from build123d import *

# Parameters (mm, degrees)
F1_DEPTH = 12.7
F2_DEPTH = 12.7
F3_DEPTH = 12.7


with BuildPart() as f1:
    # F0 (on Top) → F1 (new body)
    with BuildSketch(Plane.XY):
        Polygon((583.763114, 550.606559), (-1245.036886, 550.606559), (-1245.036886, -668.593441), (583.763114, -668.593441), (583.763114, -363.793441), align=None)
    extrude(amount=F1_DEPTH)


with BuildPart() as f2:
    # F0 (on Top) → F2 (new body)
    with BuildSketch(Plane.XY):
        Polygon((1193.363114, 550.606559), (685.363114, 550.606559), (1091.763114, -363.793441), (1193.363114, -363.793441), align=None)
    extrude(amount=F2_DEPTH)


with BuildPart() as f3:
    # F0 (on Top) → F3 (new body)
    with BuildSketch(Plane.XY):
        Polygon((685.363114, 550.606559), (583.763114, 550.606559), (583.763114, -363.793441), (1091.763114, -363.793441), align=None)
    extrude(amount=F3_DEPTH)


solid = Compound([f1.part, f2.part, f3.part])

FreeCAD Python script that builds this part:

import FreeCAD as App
import Part
import Sketcher
Q = App.Units.Quantity

doc = App.newDocument("Part")
body = doc.addObject("PartDesign::Body", "Body")

# Sketch on XY plane
sketch1 = body.newObject("Sketcher::SketchObject", "Sketch")
sketch1.AttachmentSupport = (doc.getObject("XY_Plane"), [""])
sketch1.MapMode = "FlatFace"
sketch1.addGeometry(Part.LineSegment(App.Vector(583.763114, 550.606559, 0), App.Vector(-1245.036886, 550.606559, 0)), False)
sketch1.addGeometry(Part.LineSegment(App.Vector(-1245.036886, 550.606559, 0), App.Vector(-1245.036886, -668.593441, 0)), False)
sketch1.addGeometry(Part.LineSegment(App.Vector(-1245.036886, -668.593441, 0), App.Vector(583.763114, -668.593441, 0)), False)
sketch1.addGeometry(Part.LineSegment(App.Vector(583.763114, -668.593441, 0), App.Vector(583.763114, 550.606559, 0)), False)
sketch1.addConstraint(Sketcher.Constraint("Coincident", 0, 2, 1, 1))
sketch1.addConstraint(Sketcher.Constraint("Coincident", 1, 2, 2, 1))
sketch1.addConstraint(Sketcher.Constraint("Coincident", 2, 2, 3, 1))
sketch1.addConstraint(Sketcher.Constraint("Coincident", 3, 2, 0, 1))
sketch1.addConstraint(Sketcher.Constraint("Horizontal", 0))
sketch1.addConstraint(Sketcher.Constraint("Vertical", 1))
sketch1.addConstraint(Sketcher.Constraint("Horizontal", 2))
sketch1.addConstraint(Sketcher.Constraint("Vertical", 3))
sketch1.addConstraint(Sketcher.Constraint("DistanceX", 0, 2, 0, 1, Q("72 in")))
sketch1.addConstraint(Sketcher.Constraint("DistanceY", 1, 2, 1, 1, Q("48 in")))
sketch1.addConstraint(Sketcher.Constraint("DistanceY", -1, 1, 0, 2, Q("550.606559 mm")))
sketch1.addConstraint(Sketcher.Constraint("DistanceX", 0, 2, -1, 1, Q("1245.036886 mm")))
pad1 = body.newObject("PartDesign::Pad", "Pad")
pad1.Profile = sketch1
pad1.Length = Q("0.5 in")
body2 = doc.addObject("PartDesign::Body", "Body001")

# Sketch on XY plane
sketch2 = body2.newObject("Sketcher::SketchObject", "Sketch001")
sketch2.AttachmentSupport = (doc.getObject("XY_Plane001"), [""])
sketch2.MapMode = "FlatFace"
sketch2.addGeometry(Part.LineSegment(App.Vector(1193.363114, 550.606559, 0), App.Vector(685.363114, 550.606559, 0)), False)
sketch2.addGeometry(Part.LineSegment(App.Vector(685.363114, 550.606559, 0), App.Vector(1091.763114, -363.793441, 0)), False)
sketch2.addGeometry(Part.LineSegment(App.Vector(1091.763114, -363.793441, 0), App.Vector(1193.363114, -363.793441, 0)), False)
sketch2.addGeometry(Part.LineSegment(App.Vector(1193.363114, -363.793441, 0), App.Vector(1193.363114, 550.606559, 0)), False)
sketch2.addConstraint(Sketcher.Constraint("Coincident", 0, 2, 1, 1))
sketch2.addConstraint(Sketcher.Constraint("Coincident", 1, 2, 2, 1))
sketch2.addConstraint(Sketcher.Constraint("Coincident", 2, 2, 3, 1))
sketch2.addConstraint(Sketcher.Constraint("Coincident", 3, 2, 0, 1))
sketch2.addConstraint(Sketcher.Constraint("Horizontal", 0))
sketch2.addConstraint(Sketcher.Constraint("Horizontal", 2))
sketch2.addConstraint(Sketcher.Constraint("Vertical", 3))
sketch2.addConstraint(Sketcher.Constraint("DistanceX", 0, 2, 0, 1, Q("20 in")))
sketch2.addConstraint(Sketcher.Constraint("DistanceX", 2, 1, 2, 2, Q("4 in")))
sketch2.addConstraint(Sketcher.Constraint("DistanceY", 3, 1, 3, 2, Q("36 in")))
sketch2.addConstraint(Sketcher.Constraint("DistanceY", -1, 1, 0, 2, Q("550.606559 mm")))
sketch2.addConstraint(Sketcher.Constraint("DistanceX", -1, 1, 0, 2, Q("685.363114 mm")))
pad2 = body2.newObject("PartDesign::Pad", "Pad001")
pad2.Profile = sketch2
pad2.Length = Q("0.5 in")
body3 = doc.addObject("PartDesign::Body", "Body002")

# Sketch on XY plane
sketch3 = body3.newObject("Sketcher::SketchObject", "Sketch002")
sketch3.AttachmentSupport = (doc.getObject("XY_Plane002"), [""])
sketch3.MapMode = "FlatFace"
sketch3.addGeometry(Part.LineSegment(App.Vector(685.363114, 550.606559, 0), App.Vector(583.763114, 550.606559, 0)), False)
sketch3.addGeometry(Part.LineSegment(App.Vector(583.763114, 550.606559, 0), App.Vector(583.763114, -363.793441, 0)), False)
sketch3.addGeometry(Part.LineSegment(App.Vector(583.763114, -363.793441, 0), App.Vector(1091.763114, -363.793441, 0)), False)
sketch3.addGeometry(Part.LineSegment(App.Vector(1091.763114, -363.793441, 0), App.Vector(685.363114, 550.606559, 0)), False)
sketch3.addConstraint(Sketcher.Constraint("Coincident", 0, 2, 1, 1))
sketch3.addConstraint(Sketcher.Constraint("Coincident", 1, 2, 2, 1))
sketch3.addConstraint(Sketcher.Constraint("Coincident", 2, 2, 3, 1))
sketch3.addConstraint(Sketcher.Constraint("Coincident", 3, 2, 0, 1))
sketch3.addConstraint(Sketcher.Constraint("Horizontal", 0))
sketch3.addConstraint(Sketcher.Constraint("Vertical", 1))
sketch3.addConstraint(Sketcher.Constraint("Horizontal", 2))
sketch3.addConstraint(Sketcher.Constraint("DistanceX", 0, 2, 0, 1, Q("4 in")))
sketch3.addConstraint(Sketcher.Constraint("DistanceX", 2, 1, 2, 2, Q("20 in")))
sketch3.addConstraint(Sketcher.Constraint("DistanceY", 1, 2, 1, 1, Q("36 in")))
sketch3.addConstraint(Sketcher.Constraint("DistanceY", -1, 1, 0, 2, Q("550.606559 mm")))
sketch3.addConstraint(Sketcher.Constraint("DistanceX", -1, 1, 0, 2, Q("583.763114 mm")))
pad3 = body3.newObject("PartDesign::Pad", "Pad002")
pad3.Profile = sketch3
pad3.Length = Q("0.5 in")

doc.recompute()
